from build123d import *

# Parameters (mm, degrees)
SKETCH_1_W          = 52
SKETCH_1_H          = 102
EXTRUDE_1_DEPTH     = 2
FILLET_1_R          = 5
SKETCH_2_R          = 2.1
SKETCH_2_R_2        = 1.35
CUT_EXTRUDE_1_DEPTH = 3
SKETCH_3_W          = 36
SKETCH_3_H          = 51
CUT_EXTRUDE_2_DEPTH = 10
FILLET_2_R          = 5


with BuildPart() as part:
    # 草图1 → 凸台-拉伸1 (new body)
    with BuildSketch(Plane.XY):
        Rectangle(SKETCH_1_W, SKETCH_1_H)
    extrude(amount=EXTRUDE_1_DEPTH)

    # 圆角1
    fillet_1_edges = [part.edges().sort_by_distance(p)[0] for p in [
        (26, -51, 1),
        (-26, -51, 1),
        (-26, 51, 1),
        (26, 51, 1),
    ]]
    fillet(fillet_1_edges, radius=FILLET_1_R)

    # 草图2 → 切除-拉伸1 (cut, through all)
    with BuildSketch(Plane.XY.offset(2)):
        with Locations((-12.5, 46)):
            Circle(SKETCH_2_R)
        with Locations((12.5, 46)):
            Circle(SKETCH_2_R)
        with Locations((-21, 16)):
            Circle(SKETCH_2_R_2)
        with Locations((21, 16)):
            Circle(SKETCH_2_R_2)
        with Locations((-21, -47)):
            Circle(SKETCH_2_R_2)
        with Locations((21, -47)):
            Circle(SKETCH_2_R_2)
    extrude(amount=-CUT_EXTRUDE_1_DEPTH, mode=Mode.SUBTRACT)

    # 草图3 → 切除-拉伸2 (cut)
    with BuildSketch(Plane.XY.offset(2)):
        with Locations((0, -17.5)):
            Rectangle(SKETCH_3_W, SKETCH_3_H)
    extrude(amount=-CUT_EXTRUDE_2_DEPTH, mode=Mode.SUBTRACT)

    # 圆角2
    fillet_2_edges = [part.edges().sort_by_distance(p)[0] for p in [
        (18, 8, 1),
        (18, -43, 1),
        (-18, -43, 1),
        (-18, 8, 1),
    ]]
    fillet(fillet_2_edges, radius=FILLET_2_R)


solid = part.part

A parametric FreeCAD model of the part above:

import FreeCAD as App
import Part
import Sketcher

V = App.Vector
Q = App.Units.Quantity


def edges_at(feature, points):
    """Names of the edges that pass closest to the given points."""
    edges = feature.Shape.Edges
    near = lambda p: min(range(len(edges)), key=lambda i: edges[i].distToShape(Part.Vertex(*p))[0])
    return sorted({f"Edge{near(p) + 1}" for p in points})


def add_polygon(sketch, points):
    """Adds a closed chain of lines whose ends are joined by coincident constraints."""
    first, n = sketch.GeometryCount, len(points)
    for a, b in zip(points, points[1:] + points[:1]):
        sketch.addGeometry(Part.LineSegment(App.Vector(*a, 0), App.Vector(*b, 0)), False)
    for i in range(n):
        sketch.addConstraint(Sketcher.Constraint("Coincident", first + i, 2, first + (i + 1) % n, 1))

doc = App.newDocument("Part")
body = doc.addObject("PartDesign::Body", "Body")

# Sketch on XY plane
sketch1 = doc.addObject("Sketcher::SketchObject", "Sketch")
body.addObject(sketch1)
sketch1.AttachmentSupport = (doc.XY_Plane, [""])
sketch1.MapMode = "FlatFace"
add_polygon(sketch1, [(-26, 51), (-26, -51), (26, -51), (26, 51)])  # lines 0-3
sketch1.addConstraint([
    Sketcher.Constraint("Vertical", 0),
    Sketcher.Constraint("Horizontal", 1),
    Sketcher.Constraint("Vertical", 2),
    Sketcher.Constraint("Horizontal", 3),
    Sketcher.Constraint("Symmetric", 0, 2, 2, 2, -1, 1),
    Sketcher.Constraint("DistanceX", 1, 1, 1, 2, Q("52 mm")),
    Sketcher.Constraint("DistanceY", 0, 2, 0, 1, Q("102 mm")),
])
pad1 = doc.addObject("PartDesign::Pad", "Pad")
body.addObject(pad1)
pad1.Profile = sketch1
pad1.Length = 2
doc.recompute()

fillet = doc.addObject("PartDesign::Fillet", "Fillet")
body.addObject(fillet)
fillet.Base = (pad1, edges_at(pad1, [
    (26, -51, 1),
    (-26, -51, 1),
    (-26, 51, 1),
    (26, 51, 1),
]))
fillet.Radius = 5

# Sketch on XY plane
sketch2 = doc.addObject("Sketcher::SketchObject", "Sketch001")
body.addObject(sketch2)
sketch2.AttachmentSupport = (doc.XY_Plane, [""])
sketch2.MapMode = "FlatFace"
sketch2.AttachmentOffset = App.Placement(V(0, 0, 2), App.Rotation())
sketch2.addGeometry([
    Part.Circle(V(-12.5, 46, 0), V(0, 0, 1), 2.1),  # 0
    Part.Circle(V(12.5, 46, 0), V(0, 0, 1), 2.1),  # 1
    Part.Circle(V(-21, 16, 0), V(0, 0, 1), 1.4),  # 2
    Part.Circle(V(21, 16, 0), V(0, 0, 1), 1.4),  # 3
    Part.Circle(V(-21, -47, 0), V(0, 0, 1), 1.4),  # 4
    Part.Circle(V(21, -47, 0), V(0, 0, 1), 1.4),  # 5
], False)
sketch2.addConstraint([
    Sketcher.Constraint("Equal", 0, 1),
    Sketcher.Constraint("Equal", 2, 3),
    Sketcher.Constraint("Equal", 3, 4),
    Sketcher.Constraint("Equal", 4, 5),
    Sketcher.Constraint("Symmetric", 0, 3, 1, 3, -2),
    Sketcher.Constraint("Symmetric", 2, 3, 3, 3, -2),
    Sketcher.Constraint("Symmetric", 4, 3, 5, 3, -2),
    Sketcher.Constraint("Vertical", 2, 3, 4, 3),
    Sketcher.Constraint("Diameter", 0, Q("4.2 mm")),
    Sketcher.Constraint("Diameter", 2, Q("2.7 mm")),
    Sketcher.Constraint("DistanceY", -1, 1, 0, 3, Q("46 mm")),
    Sketcher.Constraint("DistanceX", 2, 3, -1, 1, Q("21 mm")),
    Sketcher.Constraint("DistanceY", -1, 1, 2, 3, Q("16 mm")),
    Sketcher.Constraint("DistanceY", 4, 3, -1, 1, Q("47 mm")),
    Sketcher.Constraint("DistanceX", 0, 3, 1, 3, Q("25 mm")),
])
pocket1 = doc.addObject("PartDesign::Pocket", "Pocket")
body.addObject(pocket1)
pocket1.Profile = sketch2
pocket1.Type = "ThroughAll"

# Sketch on XY plane
sketch3 = doc.addObject("Sketcher::SketchObject", "Sketch002")
body.addObject(sketch3)
sketch3.AttachmentSupport = (doc.XY_Plane, [""])
sketch3.MapMode = "FlatFace"
sketch3.AttachmentOffset = App.Placement(V(0, 0, 2), App.Rotation())
add_polygon(sketch3, [(-18, 8), (-18, -43), (18, -43), (18, 8)])  # lines 0-3
sketch3.addConstraint([
    Sketcher.Constraint("Vertical", 0),
    Sketcher.Constraint("Horizontal", 1),
    Sketcher.Constraint("Vertical", 2),
    Sketcher.Constraint("Horizontal", 3),
    Sketcher.Constraint("DistanceX", 1, 1, 1, 2, Q("36 mm")),
    Sketcher.Constraint("DistanceY", 0, 2, 0, 1, Q("51 mm")),
    Sketcher.Constraint("DistanceX", 0, 2, -1, 1, Q("18 mm")),
    Sketcher.Constraint("DistanceY", 0, 2, -1, 1, Q("43 mm")),
])
pocket2 = doc.addObject("PartDesign::Pocket", "Pocket001")
body.addObject(pocket2)
pocket2.Profile = sketch3
pocket2.Length = 10
doc.recompute()

fillet2 = doc.addObject("PartDesign::Fillet", "Fillet001")
body.addObject(fillet2)
fillet2.Base = (pocket2, edges_at(pocket2, [
    (18, 8, 1),
    (18, -43, 1),
    (-18, -43, 1),
    (-18, 8, 1),
]))
fillet2.Radius = 5

doc.recompute()
